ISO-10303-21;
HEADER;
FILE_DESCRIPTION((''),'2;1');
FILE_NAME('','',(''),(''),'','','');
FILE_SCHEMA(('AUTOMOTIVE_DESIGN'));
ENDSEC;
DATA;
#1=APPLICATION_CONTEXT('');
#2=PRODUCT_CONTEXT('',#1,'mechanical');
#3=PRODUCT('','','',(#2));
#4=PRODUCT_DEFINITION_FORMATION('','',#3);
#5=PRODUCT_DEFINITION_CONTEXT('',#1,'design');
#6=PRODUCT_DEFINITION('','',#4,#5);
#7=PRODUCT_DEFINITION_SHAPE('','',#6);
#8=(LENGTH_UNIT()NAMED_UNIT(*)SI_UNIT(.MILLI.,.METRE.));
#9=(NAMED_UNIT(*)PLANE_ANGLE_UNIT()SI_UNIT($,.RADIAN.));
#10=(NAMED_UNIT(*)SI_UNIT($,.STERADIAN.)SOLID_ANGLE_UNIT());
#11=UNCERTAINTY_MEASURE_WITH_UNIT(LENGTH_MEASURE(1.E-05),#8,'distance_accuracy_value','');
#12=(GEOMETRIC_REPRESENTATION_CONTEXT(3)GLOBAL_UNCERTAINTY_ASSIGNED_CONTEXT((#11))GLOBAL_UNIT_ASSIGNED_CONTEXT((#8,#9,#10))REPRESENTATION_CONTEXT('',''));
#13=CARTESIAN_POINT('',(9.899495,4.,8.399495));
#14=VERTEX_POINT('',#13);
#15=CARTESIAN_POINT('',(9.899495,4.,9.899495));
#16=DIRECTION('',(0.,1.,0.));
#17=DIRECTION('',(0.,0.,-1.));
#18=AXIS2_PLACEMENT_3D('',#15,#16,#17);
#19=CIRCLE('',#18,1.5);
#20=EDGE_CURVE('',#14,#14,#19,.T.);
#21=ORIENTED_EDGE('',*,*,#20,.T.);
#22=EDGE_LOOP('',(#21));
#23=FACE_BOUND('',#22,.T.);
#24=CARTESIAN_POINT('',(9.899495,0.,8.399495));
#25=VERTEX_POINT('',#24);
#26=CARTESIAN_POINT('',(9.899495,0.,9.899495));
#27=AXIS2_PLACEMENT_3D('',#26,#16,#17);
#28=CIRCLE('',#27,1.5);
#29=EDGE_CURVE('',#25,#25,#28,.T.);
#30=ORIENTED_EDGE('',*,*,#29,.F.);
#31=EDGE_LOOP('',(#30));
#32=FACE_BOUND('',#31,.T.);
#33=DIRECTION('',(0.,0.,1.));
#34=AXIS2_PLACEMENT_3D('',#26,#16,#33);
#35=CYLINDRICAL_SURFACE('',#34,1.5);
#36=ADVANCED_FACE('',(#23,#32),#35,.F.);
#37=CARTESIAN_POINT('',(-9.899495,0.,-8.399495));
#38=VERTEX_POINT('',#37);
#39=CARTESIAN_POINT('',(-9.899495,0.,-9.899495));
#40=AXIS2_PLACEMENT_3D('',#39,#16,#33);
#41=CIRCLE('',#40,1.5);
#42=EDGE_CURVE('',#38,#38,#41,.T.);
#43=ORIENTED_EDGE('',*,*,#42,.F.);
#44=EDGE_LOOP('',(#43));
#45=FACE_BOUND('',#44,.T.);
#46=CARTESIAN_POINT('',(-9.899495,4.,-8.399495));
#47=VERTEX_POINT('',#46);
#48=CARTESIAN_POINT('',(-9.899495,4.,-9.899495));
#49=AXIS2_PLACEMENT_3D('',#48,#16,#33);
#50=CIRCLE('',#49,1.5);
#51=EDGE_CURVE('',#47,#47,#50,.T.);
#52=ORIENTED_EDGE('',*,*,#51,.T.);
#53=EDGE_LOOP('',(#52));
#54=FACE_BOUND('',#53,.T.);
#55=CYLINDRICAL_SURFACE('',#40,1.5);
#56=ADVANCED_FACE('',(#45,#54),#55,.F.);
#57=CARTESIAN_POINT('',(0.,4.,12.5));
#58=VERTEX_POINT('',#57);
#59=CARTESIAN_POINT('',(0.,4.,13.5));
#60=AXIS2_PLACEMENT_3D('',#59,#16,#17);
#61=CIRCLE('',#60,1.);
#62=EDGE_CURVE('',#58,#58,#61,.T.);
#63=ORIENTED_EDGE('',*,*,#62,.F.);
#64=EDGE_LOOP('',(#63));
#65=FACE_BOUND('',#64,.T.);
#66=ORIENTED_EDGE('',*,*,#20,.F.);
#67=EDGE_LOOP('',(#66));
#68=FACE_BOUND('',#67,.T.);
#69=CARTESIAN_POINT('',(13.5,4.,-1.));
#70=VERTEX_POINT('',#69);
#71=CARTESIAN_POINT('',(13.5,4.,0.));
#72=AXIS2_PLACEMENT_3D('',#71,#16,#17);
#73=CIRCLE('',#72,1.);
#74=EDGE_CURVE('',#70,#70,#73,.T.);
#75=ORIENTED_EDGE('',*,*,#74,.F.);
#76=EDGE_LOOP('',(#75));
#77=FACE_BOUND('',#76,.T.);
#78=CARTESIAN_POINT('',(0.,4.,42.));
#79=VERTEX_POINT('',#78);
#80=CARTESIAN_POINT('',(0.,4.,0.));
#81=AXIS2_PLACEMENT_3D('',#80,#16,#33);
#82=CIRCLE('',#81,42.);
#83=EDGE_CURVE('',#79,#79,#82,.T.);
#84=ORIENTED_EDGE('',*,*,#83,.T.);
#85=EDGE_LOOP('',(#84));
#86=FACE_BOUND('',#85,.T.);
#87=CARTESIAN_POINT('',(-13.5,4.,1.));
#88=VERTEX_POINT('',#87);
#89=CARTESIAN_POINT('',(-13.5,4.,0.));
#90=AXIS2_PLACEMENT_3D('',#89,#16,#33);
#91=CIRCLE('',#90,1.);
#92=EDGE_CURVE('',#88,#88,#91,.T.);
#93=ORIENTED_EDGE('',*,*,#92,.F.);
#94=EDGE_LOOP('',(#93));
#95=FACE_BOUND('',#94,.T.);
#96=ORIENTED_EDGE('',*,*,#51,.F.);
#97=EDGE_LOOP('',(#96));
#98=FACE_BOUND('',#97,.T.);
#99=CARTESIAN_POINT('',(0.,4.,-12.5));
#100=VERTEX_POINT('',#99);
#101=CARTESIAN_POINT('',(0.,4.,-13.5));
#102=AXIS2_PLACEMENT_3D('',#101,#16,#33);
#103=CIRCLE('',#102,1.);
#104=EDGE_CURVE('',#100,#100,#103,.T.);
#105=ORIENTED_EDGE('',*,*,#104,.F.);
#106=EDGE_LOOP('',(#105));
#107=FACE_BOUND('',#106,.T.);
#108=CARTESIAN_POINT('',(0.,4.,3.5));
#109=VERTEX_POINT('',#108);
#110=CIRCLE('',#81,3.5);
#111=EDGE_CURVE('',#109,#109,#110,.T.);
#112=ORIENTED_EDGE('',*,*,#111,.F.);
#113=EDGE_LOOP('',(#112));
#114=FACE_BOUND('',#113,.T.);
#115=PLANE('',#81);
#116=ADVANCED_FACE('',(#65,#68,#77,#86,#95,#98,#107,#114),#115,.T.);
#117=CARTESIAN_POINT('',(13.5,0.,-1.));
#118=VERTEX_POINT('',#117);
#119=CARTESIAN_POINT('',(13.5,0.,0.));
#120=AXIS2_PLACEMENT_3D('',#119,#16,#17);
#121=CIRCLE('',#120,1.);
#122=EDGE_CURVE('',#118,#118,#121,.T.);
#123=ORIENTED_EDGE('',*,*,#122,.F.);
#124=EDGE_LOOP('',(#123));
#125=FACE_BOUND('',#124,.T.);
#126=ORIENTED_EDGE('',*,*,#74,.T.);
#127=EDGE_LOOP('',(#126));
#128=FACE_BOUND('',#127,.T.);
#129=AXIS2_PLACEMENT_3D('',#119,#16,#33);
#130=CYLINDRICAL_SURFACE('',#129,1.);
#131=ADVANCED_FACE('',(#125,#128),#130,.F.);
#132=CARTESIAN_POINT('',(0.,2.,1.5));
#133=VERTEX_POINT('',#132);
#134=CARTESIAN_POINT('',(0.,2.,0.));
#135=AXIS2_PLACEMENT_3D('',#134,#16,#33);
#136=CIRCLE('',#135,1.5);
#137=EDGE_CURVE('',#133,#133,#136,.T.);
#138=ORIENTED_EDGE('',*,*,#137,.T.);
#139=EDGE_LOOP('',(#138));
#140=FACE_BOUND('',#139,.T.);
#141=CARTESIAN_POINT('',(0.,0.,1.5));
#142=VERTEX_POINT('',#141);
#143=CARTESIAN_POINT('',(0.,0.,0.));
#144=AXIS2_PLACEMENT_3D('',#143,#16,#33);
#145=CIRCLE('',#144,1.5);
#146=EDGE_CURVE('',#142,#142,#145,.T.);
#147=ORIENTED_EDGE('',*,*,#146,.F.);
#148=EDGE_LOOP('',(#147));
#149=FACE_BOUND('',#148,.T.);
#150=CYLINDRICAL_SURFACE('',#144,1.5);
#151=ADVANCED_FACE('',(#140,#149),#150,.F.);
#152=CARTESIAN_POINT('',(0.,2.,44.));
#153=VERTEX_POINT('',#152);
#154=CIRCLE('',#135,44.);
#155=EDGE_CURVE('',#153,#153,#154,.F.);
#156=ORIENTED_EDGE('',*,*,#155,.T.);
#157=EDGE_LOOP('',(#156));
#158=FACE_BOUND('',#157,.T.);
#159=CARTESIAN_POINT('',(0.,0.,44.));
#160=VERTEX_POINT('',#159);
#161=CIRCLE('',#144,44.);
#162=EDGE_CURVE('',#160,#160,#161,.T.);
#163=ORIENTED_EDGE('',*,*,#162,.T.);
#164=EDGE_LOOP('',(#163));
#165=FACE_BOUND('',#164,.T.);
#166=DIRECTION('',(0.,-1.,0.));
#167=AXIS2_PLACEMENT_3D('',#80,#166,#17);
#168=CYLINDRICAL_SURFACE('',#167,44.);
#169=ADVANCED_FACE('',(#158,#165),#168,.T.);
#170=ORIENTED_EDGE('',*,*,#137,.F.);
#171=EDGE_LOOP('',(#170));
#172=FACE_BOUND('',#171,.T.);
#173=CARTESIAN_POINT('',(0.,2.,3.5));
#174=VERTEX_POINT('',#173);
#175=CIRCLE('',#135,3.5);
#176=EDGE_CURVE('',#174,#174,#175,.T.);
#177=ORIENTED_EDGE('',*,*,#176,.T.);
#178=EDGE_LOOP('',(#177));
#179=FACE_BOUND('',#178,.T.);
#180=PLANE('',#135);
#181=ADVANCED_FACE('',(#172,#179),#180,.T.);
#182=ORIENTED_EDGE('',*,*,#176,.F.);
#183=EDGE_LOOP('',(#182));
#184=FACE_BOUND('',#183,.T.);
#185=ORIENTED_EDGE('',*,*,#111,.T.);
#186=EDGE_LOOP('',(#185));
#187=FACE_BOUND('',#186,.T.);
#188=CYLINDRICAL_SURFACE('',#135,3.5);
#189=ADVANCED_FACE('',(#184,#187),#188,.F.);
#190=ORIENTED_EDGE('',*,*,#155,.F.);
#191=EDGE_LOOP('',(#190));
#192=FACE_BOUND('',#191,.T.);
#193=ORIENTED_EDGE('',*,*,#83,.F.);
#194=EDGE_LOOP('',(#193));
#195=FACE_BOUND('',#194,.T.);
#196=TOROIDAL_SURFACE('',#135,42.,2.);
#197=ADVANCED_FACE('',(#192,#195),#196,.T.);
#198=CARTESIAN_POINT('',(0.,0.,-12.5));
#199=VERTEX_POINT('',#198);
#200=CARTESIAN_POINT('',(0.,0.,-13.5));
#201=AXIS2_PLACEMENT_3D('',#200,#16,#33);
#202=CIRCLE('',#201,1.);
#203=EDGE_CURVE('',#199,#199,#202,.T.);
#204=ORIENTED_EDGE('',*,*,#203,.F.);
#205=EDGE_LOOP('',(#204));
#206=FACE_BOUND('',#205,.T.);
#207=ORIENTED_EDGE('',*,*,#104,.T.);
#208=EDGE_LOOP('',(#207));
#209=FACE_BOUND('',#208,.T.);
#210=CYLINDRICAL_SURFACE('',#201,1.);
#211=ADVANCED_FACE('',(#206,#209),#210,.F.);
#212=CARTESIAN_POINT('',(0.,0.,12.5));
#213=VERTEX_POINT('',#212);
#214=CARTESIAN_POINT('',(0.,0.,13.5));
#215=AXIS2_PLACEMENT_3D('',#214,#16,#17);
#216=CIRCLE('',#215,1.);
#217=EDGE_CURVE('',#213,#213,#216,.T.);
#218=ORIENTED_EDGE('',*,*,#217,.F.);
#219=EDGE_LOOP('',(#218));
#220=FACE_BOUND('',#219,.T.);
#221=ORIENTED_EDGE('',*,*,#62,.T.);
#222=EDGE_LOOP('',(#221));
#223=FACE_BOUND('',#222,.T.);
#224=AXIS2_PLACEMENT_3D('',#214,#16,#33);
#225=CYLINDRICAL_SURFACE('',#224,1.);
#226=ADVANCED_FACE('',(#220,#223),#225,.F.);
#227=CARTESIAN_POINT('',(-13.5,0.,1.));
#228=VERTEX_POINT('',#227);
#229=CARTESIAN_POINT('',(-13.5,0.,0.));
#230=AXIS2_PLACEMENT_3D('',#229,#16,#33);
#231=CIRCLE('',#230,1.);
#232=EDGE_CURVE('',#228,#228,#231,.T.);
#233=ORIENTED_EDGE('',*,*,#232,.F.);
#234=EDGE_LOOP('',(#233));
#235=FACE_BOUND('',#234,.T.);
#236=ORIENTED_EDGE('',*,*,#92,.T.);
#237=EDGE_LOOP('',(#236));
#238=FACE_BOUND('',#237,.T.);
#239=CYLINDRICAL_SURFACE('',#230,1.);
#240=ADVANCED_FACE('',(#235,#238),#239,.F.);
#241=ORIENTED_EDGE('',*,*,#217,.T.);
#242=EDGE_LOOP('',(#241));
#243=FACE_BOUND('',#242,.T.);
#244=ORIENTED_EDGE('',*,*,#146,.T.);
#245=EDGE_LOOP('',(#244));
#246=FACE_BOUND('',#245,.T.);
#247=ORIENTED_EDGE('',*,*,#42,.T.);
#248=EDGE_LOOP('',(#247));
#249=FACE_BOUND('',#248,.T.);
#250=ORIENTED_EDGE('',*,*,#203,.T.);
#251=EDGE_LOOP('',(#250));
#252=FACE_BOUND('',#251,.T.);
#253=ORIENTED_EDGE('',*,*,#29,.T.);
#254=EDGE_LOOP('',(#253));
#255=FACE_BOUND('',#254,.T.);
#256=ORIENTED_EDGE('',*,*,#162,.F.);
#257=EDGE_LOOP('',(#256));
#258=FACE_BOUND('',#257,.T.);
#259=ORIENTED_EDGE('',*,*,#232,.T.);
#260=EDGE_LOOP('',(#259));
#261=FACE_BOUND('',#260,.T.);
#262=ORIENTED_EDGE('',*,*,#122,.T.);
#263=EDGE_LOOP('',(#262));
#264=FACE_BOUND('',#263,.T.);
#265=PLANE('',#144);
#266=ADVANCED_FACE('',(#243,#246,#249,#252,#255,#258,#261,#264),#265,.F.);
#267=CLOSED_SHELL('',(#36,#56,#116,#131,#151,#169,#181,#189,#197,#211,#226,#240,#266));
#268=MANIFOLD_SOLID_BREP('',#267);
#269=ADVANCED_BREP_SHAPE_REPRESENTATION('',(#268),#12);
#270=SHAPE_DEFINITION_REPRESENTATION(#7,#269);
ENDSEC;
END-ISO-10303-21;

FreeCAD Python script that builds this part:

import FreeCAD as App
import Part
import Sketcher
from FreeCAD import Vector
Q = App.Units.Quantity


def edges_at(feature, points):
    """Names of the edges that pass closest to the given points."""
    edges = feature.Shape.Edges
    near = lambda p: min(range(len(edges)), key=lambda i: edges[i].distToShape(Part.Vertex(*p))[0])
    return sorted({f"Edge{near(p) + 1}" for p in points})

doc = App.newDocument("Part")
body = doc.addObject("PartDesign::Body", "Body")

# Sketch on XZ plane
sketch1 = body.newObject("Sketcher::SketchObject", "Sketch")
sketch1.AttachmentSupport = (doc.getObject("XZ_Plane"), [""])
sketch1.MapMode = "FlatFace"
sketch1.addGeometry(Part.Circle(Vector(0, 0, 0), Vector(0, 0, 1), 44), False)
sketch1.addConstraint(Sketcher.Constraint("Coincident", 0, 3, -1, 1))
sketch1.addConstraint(Sketcher.Constraint("Diameter", 0, Q("88 mm")))
pad1 = body.newObject("PartDesign::Pad", "Pad")
pad1.Profile = sketch1
pad1.Length = 4
pad1.Reversed = True

# Sketch on XZ plane
sketch2 = body.newObject("Sketcher::SketchObject", "Sketch001")
sketch2.AttachmentSupport = (doc.getObject("XZ_Plane"), [""])
sketch2.MapMode = "FlatFace"
sketch2.AttachmentOffset = App.Placement(Vector(0, 0, -4), App.Rotation())
sketch2.addGeometry(Part.Circle(Vector(0, 0, 0), Vector(0, 0, 1), 3.5), False)
sketch2.addConstraint(Sketcher.Constraint("Coincident", 0, 3, -1, 1))
sketch2.addConstraint(Sketcher.Constraint("Diameter", 0, Q("7 mm")))
pocket1 = body.newObject("PartDesign::Pocket", "Pocket")
pocket1.Profile = sketch2
pocket1.Length = 2
pocket1.Reversed = True

# Sketch on XZ plane
sketch3 = body.newObject("Sketcher::SketchObject", "Sketch002")
sketch3.AttachmentSupport = (doc.getObject("XZ_Plane"), [""])
sketch3.MapMode = "FlatFace"
sketch3.AttachmentOffset = App.Placement(Vector(0, 0, -4), App.Rotation())
sketch3.addGeometry(Part.Circle(Vector(0, -13.5, 0), Vector(0, 0, 1), 1), False)
sketch3.addGeometry(Part.Circle(Vector(0, 13.5, 0), Vector(0, 0, 1), 1), False)
sketch3.addGeometry(Part.Circle(Vector(-13.5, 0, 0), Vector(0, 0, 1), 1), False)
sketch3.addGeometry(Part.Circle(Vector(13.5, 0, 0), Vector(0, 0, 1), 1), False)
sketch3.addConstraint(Sketcher.Constraint("Equal", 0, 1))
sketch3.addConstraint(Sketcher.Constraint("Equal", 1, 2))
sketch3.addConstraint(Sketcher.Constraint("Equal", 2, 3))
sketch3.addConstraint(Sketcher.Constraint("Symmetric", 0, 3, 1, 3, -1, 1))
sketch3.addConstraint(Sketcher.Constraint("Symmetric", 2, 3, 3, 3, -1, 1))
sketch3.addConstraint(Sketcher.Constraint("PointOnObject", 0, 3, -2))
sketch3.addConstraint(Sketcher.Constraint("PointOnObject", 2, 3, -1))
sketch3.addConstraint(Sketcher.Constraint("Diameter", 0, Q("2 mm")))
sketch3.addConstraint(Sketcher.Constraint("DistanceY", 0, 3, 1, 3, Q("27 mm")))
sketch3.addConstraint(Sketcher.Constraint("DistanceX", 2, 3, 3, 3, Q("27 mm")))
pocket2 = body.newObject("PartDesign::Pocket", "Pocket001")
pocket2.Profile = sketch3
pocket2.Type = "ThroughAll"
pocket2.Reversed = True

# Sketch on XZ plane
sketch4 = body.newObject("Sketcher::SketchObject", "Sketch003")
sketch4.AttachmentSupport = (doc.getObject("XZ_Plane"), [""])
sketch4.MapMode = "FlatFace"
sketch4.AttachmentOffset = App.Placement(Vector(0, 0, -2), App.Rotation())
sketch4.addGeometry(Part.Circle(Vector(0, 0, 0), Vector(0, 0, 1), 1.5), False)
sketch4.addConstraint(Sketcher.Constraint("Coincident", 0, 3, -1, 1))
sketch4.addConstraint(Sketcher.Constraint("Diameter", 0, Q("3 mm")))
pocket3 = body.newObject("PartDesign::Pocket", "Pocket002")
pocket3.Profile = sketch4
pocket3.Type = "ThroughAll"
pocket3.Reversed = True

# Sketch on XZ plane
sketch5 = body.newObject("Sketcher::SketchObject", "Sketch004")
sketch5.AttachmentSupport = (doc.getObject("XZ_Plane"), [""])
sketch5.MapMode = "FlatFace"
sketch5.AttachmentOffset = App.Placement(Vector(0, 0, -4), App.Rotation())
sketch5.addGeometry(Part.Circle(Vector(-9.9, -9.9, 0), Vector(0, 0, 1), 1.5), False)
sketch5.addGeometry(Part.Circle(Vector(9.9, 9.9, 0), Vector(0, 0, 1), 1.5), False)
sketch5.addConstraint(Sketcher.Constraint("Equal", 0, 1))
sketch5.addConstraint(Sketcher.Constraint("Symmetric", 0, 3, 1, 3, -1, 1))
sketch5.addConstraint(Sketcher.Constraint("Diameter", 0, Q("3 mm")))
sketch5.addConstraint(Sketcher.Constraint("DistanceX", 0, 3, 1, 3, Q("19.79899 mm")))
sketch5.addConstraint(Sketcher.Constraint("DistanceY", 0, 3, 1, 3, Q("19.79899 mm")))
pocket4 = body.newObject("PartDesign::Pocket", "Pocket003")
pocket4.Profile = sketch5
pocket4.Type = "ThroughAll"
pocket4.Reversed = True
doc.recompute()

fillet = body.newObject("PartDesign::Fillet", "Fillet")
fillet.Base = (pocket4, edges_at(pocket4, [(0, 4, -44)]))
fillet.Radius = 2

doc.recompute()
